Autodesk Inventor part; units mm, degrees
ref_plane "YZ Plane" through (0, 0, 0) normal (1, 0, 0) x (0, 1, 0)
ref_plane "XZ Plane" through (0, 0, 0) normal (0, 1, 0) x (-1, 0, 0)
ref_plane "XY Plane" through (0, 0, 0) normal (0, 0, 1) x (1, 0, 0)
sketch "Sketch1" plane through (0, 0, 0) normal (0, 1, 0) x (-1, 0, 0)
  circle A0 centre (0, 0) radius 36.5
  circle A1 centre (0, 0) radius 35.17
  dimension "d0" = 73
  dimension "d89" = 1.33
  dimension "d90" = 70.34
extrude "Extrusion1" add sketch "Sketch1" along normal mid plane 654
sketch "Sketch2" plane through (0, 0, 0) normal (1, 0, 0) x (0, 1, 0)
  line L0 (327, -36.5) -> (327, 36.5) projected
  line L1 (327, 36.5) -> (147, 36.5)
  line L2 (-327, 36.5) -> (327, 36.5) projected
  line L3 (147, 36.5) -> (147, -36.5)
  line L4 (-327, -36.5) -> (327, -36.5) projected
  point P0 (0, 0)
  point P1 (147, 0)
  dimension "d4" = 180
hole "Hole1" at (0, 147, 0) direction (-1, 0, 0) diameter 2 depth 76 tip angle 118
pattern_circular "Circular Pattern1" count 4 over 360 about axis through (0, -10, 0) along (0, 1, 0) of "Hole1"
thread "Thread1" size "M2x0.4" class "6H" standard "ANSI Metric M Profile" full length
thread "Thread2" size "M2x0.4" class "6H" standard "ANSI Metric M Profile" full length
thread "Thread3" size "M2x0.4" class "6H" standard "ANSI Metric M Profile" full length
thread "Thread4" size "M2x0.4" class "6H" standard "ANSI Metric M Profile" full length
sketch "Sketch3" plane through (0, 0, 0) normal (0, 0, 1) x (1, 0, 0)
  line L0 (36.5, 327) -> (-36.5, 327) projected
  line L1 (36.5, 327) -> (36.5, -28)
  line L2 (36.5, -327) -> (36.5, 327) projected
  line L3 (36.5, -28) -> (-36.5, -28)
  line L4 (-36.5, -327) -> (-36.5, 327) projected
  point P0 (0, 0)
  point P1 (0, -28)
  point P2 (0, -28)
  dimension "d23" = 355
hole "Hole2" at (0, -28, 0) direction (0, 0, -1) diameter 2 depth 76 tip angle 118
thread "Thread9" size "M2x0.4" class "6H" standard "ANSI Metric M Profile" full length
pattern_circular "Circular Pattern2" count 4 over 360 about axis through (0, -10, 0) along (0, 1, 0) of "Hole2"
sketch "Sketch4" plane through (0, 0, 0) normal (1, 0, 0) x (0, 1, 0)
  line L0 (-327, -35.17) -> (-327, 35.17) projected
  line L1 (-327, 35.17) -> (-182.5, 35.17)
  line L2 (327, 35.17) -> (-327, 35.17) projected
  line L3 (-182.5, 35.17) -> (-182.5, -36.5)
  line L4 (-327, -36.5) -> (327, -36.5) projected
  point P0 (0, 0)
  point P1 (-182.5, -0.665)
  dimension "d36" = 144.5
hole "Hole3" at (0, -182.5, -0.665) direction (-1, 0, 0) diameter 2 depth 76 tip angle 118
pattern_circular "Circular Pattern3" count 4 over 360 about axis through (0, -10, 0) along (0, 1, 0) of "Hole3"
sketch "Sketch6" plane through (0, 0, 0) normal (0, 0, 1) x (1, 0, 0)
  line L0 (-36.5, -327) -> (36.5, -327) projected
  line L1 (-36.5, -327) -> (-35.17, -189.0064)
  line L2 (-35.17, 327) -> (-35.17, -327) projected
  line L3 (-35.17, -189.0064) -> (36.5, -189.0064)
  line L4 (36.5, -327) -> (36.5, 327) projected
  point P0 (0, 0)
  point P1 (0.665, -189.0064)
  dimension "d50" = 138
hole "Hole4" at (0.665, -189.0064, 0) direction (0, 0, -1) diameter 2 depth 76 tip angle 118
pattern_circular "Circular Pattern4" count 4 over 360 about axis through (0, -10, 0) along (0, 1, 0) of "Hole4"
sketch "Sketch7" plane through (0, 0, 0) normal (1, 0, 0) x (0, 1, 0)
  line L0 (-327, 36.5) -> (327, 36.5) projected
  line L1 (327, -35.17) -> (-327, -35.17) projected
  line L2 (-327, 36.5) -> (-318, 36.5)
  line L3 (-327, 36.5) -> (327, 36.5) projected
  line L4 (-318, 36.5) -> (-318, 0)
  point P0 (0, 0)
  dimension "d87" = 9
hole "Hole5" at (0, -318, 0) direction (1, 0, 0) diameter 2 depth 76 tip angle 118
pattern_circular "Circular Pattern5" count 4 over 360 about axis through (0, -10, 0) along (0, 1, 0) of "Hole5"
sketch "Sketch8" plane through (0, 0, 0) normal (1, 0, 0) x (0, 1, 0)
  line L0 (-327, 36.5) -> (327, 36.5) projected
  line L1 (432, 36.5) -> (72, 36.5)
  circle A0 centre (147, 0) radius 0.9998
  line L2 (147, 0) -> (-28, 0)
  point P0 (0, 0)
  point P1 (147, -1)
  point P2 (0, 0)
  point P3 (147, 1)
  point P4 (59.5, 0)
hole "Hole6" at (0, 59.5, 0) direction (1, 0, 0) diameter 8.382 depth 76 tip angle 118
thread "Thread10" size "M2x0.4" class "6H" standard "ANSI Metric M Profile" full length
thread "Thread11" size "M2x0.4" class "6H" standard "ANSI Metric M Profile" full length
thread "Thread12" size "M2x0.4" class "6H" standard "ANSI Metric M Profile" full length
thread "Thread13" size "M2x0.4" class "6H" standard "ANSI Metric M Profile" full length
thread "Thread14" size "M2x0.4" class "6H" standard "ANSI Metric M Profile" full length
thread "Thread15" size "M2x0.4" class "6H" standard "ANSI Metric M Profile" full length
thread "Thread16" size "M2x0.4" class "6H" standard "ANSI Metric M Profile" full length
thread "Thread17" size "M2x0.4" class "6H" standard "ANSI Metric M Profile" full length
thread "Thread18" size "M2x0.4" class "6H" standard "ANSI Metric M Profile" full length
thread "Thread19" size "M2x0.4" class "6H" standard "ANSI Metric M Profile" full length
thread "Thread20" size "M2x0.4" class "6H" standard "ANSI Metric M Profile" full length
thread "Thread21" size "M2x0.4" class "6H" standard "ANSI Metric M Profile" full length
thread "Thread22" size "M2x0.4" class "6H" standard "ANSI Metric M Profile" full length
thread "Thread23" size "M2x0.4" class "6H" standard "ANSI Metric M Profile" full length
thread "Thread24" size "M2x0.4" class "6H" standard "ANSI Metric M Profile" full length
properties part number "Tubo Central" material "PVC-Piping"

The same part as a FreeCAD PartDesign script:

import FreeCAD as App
import Part
import Sketcher
from FreeCAD import Vector

doc = App.newDocument("Part")
body = doc.addObject("PartDesign::Body", "Body")

# Sketch on XZ plane
sketch1 = body.newObject("Sketcher::SketchObject", "Sketch")
sketch1.AttachmentSupport = (doc.getObject("XZ_Plane"), [""])
sketch1.MapMode = "FlatFace"
sketch1.addGeometry([
    Part.Circle(Vector(0, 0, 0), Vector(0, 0, 1), 36),
    Part.Circle(Vector(0, 0, 0), Vector(0, 0, 1), 35),
], False)
sketch1.addConstraint([
    Sketcher.Constraint("Coincident", 0, 3, -1, 1),
    Sketcher.Constraint("Coincident", 1, 3, -1, 1),
    Sketcher.Constraint("Diameter", 0, 73.0),
    Sketcher.Constraint("Diameter", 1, 70.34),
])
pad1 = body.newObject("PartDesign::Pad", "Pad")
pad1.Profile = sketch1
pad1.Length = 654
pad1.Midplane = True

# Sketch on YZ plane
sketch2 = body.newObject("Sketcher::SketchObject", "Sketch001")
sketch2.AttachmentSupport = (doc.getObject("YZ_Plane"), [""])
sketch2.MapMode = "FlatFace"
sketch2.addGeometry(Part.Circle(Vector(147, 0, 0), Vector(0, 0, 1), 1), False)
sketch2.addConstraint([
    Sketcher.Constraint("PointOnObject", 0, 3, -1),
    Sketcher.Constraint("Diameter", 0, 2.0),
    Sketcher.Constraint("DistanceX", -1, 1, 0, 3, 147.0),
])
doc.recompute()
hole = body.newObject("PartDesign::Hole", "Hole")
hole.Profile = sketch2
hole.ThreadType = "None"
hole.Diameter = 2
hole.DepthType = "Dimension"
hole.Depth = 76
hole.DrillPoint = "Angled"
hole.DrillPointAngle = 118
doc.recompute()

polarpattern = body.newObject("PartDesign::PolarPattern", "PolarPattern")
polarpattern.Originals = [hole]
polarpattern.Axis = (doc.getObject("Y_Axis"), [""])
polarpattern.Angle = 360
polarpattern.Occurrences = 4
body.Tip = polarpattern

# Sketch on XY plane
sketch3 = body.newObject("Sketcher::SketchObject", "Sketch002")
sketch3.AttachmentSupport = (doc.getObject("XY_Plane"), [""])
sketch3.MapMode = "FlatFace"
sketch3.addGeometry(Part.Circle(Vector(0, -28, 0), Vector(0, 0, 1), 1), False)
sketch3.addConstraint([
    Sketcher.Constraint("PointOnObject", 0, 3, -2),
    Sketcher.Constraint("Diameter", 0, 2.0),
    Sketcher.Constraint("DistanceY", 0, 3, -1, 1, 28.0),
])
doc.recompute()
hole2 = body.newObject("PartDesign::Hole", "Hole001")
hole2.Profile = sketch3
hole2.ThreadType = "None"
hole2.Diameter = 2
hole2.DepthType = "Dimension"
hole2.Depth = 76
hole2.DrillPoint = "Angled"
hole2.DrillPointAngle = 118
doc.recompute()

polarpattern2 = body.newObject("PartDesign::PolarPattern", "PolarPattern001")
polarpattern2.Originals = [hole2]
polarpattern2.Axis = (doc.getObject("Y_Axis"), [""])
polarpattern2.Angle = 360
polarpattern2.Occurrences = 4
body.Tip = polarpattern2

# Sketch on YZ plane
sketch4 = body.newObject("Sketcher::SketchObject", "Sketch003")
sketch4.AttachmentSupport = (doc.getObject("YZ_Plane"), [""])
sketch4.MapMode = "FlatFace"
sketch4.addGeometry(Part.Circle(Vector(-182.5, -0.7, 0), Vector(0, 0, 1), 1), False)
sketch4.addConstraint([
    Sketcher.Constraint("Diameter", 0, 2.0),
    Sketcher.Constraint("DistanceX", 0, 3, -1, 1, 182.5),
    Sketcher.Constraint("DistanceY", 0, 3, -1, 1, 0.665),
])
doc.recompute()
hole3 = body.newObject("PartDesign::Hole", "Hole002")
hole3.Profile = sketch4
hole3.ThreadType = "None"
hole3.Diameter = 2
hole3.DepthType = "Dimension"
hole3.Depth = 76
hole3.DrillPoint = "Angled"
hole3.DrillPointAngle = 118
doc.recompute()

polarpattern3 = body.newObject("PartDesign::PolarPattern", "PolarPattern002")
polarpattern3.Originals = [hole3]
polarpattern3.Axis = (doc.getObject("Y_Axis"), [""])
polarpattern3.Angle = 360
polarpattern3.Occurrences = 4
body.Tip = polarpattern3

# Sketch on XY plane
sketch5 = body.newObject("Sketcher::SketchObject", "Sketch004")
sketch5.AttachmentSupport = (doc.getObject("XY_Plane"), [""])
sketch5.MapMode = "FlatFace"
sketch5.addGeometry(Part.Circle(Vector(0.7, -189, 0), Vector(0, 0, 1), 1), False)
sketch5.addConstraint([
    Sketcher.Constraint("Diameter", 0, 2.0),
    Sketcher.Constraint("DistanceX", -1, 1, 0, 3, 0.665),
    Sketcher.Constraint("DistanceY", 0, 3, -1, 1, 189.0064),
])
doc.recompute()
hole4 = body.newObject("PartDesign::Hole", "Hole003")
hole4.Profile = sketch5
hole4.ThreadType = "None"
hole4.Diameter = 2
hole4.DepthType = "Dimension"
hole4.Depth = 76
hole4.DrillPoint = "Angled"
hole4.DrillPointAngle = 118
doc.recompute()

polarpattern4 = body.newObject("PartDesign::PolarPattern", "PolarPattern003")
polarpattern4.Originals = [hole4]
polarpattern4.Axis = (doc.getObject("Y_Axis"), [""])
polarpattern4.Angle = 360
polarpattern4.Occurrences = 4
body.Tip = polarpattern4

# Sketch on YZ plane
sketch6 = body.newObject("Sketcher::SketchObject", "Sketch005")
sketch6.AttachmentSupport = (doc.getObject("YZ_Plane"), [""])
sketch6.MapMode = "FlatFace"
sketch6.addGeometry(Part.Circle(Vector(-318, 0, 0), Vector(0, 0, 1), 1), False)
sketch6.addConstraint([
    Sketcher.Constraint("PointOnObject", 0, 3, -1),
    Sketcher.Constraint("Diameter", 0, 2.0),
    Sketcher.Constraint("DistanceX", 0, 3, -1, 1, 318.0),
])
doc.recompute()
hole5 = body.newObject("PartDesign::Hole", "Hole004")
hole5.Profile = sketch6
hole5.ThreadType = "None"
hole5.Diameter = 2
hole5.DepthType = "Dimension"
hole5.Depth = 76
hole5.DrillPoint = "Angled"
hole5.DrillPointAngle = 118
hole5.Reversed = True
doc.recompute()

polarpattern5 = body.newObject("PartDesign::PolarPattern", "PolarPattern004")
polarpattern5.Originals = [hole5]
polarpattern5.Axis = (doc.getObject("Y_Axis"), [""])
polarpattern5.Angle = 360
polarpattern5.Occurrences = 4
body.Tip = polarpattern5

# Sketch on YZ plane
sketch7 = body.newObject("Sketcher::SketchObject", "Sketch006")
sketch7.AttachmentSupport = (doc.getObject("YZ_Plane"), [""])
sketch7.MapMode = "FlatFace"
sketch7.addGeometry(Part.Circle(Vector(59.5, 0, 0), Vector(0, 0, 1), 4.2), False)
sketch7.addConstraint([
    Sketcher.Constraint("PointOnObject", 0, 3, -1),
    Sketcher.Constraint("Diameter", 0, 8.382),
    Sketcher.Constraint("DistanceX", -1, 1, 0, 3, 59.5),
])
doc.recompute()
hole6 = body.newObject("PartDesign::Hole", "Hole005")
hole6.Profile = sketch7
hole6.ThreadType = "None"
hole6.Diameter = 8.382
hole6.DepthType = "Dimension"
hole6.Depth = 76
hole6.DrillPoint = "Angled"
hole6.DrillPointAngle = 118
hole6.Reversed = True

doc.recompute()
